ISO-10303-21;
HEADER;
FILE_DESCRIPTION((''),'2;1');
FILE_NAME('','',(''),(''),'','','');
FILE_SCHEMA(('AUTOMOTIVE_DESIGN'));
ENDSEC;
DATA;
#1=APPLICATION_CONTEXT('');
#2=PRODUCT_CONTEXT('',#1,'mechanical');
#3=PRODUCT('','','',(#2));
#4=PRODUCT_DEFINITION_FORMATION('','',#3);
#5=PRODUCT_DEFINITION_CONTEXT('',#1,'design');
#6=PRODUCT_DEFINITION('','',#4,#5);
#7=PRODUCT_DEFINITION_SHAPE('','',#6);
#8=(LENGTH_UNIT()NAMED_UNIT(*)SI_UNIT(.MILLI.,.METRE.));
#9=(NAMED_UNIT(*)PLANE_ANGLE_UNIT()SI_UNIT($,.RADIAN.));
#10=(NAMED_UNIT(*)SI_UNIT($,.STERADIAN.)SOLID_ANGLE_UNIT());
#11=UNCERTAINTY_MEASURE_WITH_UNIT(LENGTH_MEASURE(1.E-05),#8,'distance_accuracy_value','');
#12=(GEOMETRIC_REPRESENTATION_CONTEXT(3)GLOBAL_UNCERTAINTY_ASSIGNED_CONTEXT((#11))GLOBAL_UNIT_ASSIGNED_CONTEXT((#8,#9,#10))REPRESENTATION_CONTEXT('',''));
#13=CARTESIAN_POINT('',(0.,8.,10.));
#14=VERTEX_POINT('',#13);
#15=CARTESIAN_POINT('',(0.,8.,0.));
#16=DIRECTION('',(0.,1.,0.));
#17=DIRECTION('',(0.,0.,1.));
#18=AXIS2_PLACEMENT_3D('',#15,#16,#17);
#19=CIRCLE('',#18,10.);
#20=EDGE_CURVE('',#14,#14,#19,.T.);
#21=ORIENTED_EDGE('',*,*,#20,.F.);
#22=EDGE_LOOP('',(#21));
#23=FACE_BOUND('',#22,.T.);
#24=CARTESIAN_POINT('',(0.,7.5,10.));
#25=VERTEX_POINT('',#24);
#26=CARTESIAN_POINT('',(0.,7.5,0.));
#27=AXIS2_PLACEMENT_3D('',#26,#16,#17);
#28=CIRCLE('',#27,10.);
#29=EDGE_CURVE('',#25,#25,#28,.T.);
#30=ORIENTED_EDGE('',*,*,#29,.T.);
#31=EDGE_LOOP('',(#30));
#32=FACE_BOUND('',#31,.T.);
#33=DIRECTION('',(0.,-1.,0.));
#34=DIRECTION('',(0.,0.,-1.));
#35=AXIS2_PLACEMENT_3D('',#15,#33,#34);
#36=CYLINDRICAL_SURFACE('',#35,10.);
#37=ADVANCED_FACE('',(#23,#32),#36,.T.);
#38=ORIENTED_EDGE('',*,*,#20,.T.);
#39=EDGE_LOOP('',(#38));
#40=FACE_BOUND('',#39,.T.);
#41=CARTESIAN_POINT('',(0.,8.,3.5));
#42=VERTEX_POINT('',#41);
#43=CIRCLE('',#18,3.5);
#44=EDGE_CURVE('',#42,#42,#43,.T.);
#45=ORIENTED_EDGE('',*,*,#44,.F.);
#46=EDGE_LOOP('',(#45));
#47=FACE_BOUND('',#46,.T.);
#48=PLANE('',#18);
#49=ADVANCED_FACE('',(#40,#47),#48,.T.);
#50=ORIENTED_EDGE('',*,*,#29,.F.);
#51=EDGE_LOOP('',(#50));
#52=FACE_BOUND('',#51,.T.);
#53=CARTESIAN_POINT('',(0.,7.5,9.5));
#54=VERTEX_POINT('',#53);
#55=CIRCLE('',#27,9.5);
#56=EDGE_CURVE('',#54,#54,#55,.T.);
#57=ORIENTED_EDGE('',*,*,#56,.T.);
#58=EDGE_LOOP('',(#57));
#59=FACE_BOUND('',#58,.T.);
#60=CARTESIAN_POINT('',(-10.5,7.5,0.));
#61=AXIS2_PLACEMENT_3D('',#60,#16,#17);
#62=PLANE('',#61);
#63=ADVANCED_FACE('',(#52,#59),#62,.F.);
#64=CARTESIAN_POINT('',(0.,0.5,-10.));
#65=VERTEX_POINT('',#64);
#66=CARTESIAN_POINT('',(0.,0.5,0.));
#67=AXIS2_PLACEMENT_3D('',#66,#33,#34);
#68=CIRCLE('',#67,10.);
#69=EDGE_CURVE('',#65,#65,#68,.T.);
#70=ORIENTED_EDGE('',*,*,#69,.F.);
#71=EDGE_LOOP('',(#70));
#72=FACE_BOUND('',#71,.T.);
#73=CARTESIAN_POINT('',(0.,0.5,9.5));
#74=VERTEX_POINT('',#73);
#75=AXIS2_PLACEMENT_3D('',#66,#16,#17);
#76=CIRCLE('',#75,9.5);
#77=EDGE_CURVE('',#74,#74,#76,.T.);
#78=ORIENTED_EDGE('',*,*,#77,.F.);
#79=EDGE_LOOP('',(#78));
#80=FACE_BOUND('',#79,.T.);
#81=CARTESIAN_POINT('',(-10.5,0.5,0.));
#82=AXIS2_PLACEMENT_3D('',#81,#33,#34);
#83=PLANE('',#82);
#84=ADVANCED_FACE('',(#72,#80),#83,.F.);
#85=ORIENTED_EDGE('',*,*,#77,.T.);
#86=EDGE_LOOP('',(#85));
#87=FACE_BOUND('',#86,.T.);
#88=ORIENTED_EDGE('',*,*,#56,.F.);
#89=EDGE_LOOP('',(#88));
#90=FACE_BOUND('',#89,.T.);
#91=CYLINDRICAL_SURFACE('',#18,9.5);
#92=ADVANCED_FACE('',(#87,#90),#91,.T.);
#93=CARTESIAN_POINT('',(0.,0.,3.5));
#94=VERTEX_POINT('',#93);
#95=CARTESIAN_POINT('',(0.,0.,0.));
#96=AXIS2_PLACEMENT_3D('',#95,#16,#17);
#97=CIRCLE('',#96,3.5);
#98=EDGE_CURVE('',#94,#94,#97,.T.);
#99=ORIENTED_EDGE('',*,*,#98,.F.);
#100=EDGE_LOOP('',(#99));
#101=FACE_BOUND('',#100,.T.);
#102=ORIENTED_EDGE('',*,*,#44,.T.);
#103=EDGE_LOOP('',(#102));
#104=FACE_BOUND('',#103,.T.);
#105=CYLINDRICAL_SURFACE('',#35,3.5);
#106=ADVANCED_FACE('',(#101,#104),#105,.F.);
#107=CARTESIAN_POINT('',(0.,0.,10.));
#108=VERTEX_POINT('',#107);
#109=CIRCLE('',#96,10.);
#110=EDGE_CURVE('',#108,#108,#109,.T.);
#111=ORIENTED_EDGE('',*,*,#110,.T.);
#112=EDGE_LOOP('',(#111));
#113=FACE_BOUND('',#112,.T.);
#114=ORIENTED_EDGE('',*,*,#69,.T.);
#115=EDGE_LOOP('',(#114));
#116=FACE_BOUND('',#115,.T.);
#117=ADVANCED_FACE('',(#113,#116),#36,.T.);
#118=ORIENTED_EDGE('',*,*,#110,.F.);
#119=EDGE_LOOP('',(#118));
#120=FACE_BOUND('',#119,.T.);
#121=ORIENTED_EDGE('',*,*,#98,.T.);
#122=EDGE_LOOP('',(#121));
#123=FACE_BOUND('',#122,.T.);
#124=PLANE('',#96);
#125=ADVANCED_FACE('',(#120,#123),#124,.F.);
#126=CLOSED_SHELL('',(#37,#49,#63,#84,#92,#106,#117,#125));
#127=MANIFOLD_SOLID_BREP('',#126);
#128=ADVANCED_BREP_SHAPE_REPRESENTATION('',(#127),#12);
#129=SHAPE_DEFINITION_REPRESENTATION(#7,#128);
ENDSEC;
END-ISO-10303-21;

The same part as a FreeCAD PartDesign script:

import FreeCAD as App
import Part
import Sketcher
Q = App.Units.Quantity


def add_polygon(sketch, points):
    """Adds a closed chain of lines whose ends are joined by coincident constraints."""
    first, n = sketch.GeometryCount, len(points)
    for a, b in zip(points, points[1:] + points[:1]):
        sketch.addGeometry(Part.LineSegment(App.Vector(*a, 0), App.Vector(*b, 0)), False)
    for i in range(n):
        sketch.addConstraint(Sketcher.Constraint("Coincident", first + i, 2, first + (i + 1) % n, 1))

doc = App.newDocument("Part")
body = doc.addObject("PartDesign::Body", "Body")

sketch1 = doc.addObject("Sketcher::SketchObject", "Sketch")
body.addObject(sketch1)
sketch1.AttachmentSupport = (doc.XZ_Plane, [""])
sketch1.MapMode = "FlatFace"
sketch1.addGeometry(Part.Circle(App.Vector(0, 0, 0), App.Vector(0, 0, 1), 10), False)
sketch1.addGeometry(Part.Circle(App.Vector(0, 0, 0), App.Vector(0, 0, 1), 3.5), False)
sketch1.addConstraint(Sketcher.Constraint("Coincident", 0, 3, -1, 1))
sketch1.addConstraint(Sketcher.Constraint("Coincident", 1, 3, -1, 1))
sketch1.addConstraint(Sketcher.Constraint("Diameter", 0, Q("20 mm")))
sketch1.addConstraint(Sketcher.Constraint("Diameter", 1, Q("7 mm")))
pad1 = doc.addObject("PartDesign::Pad", "Pad")
body.addObject(pad1)
pad1.Profile = sketch1
pad1.Length = 8
pad1.Reversed = True

sketch2 = doc.addObject("Sketcher::SketchObject", "Sketch001")
body.addObject(sketch2)
sketch2.AttachmentSupport = (doc.XY_Plane, [""])
sketch2.MapMode = "FlatFace"
add_polygon(sketch2, [(-10.5, 7.5), (-10.5, 0.5), (-9.5, 0.5), (-9.5, 7.5)])
sketch2.addConstraint(Sketcher.Constraint("Vertical", 0))
sketch2.addConstraint(Sketcher.Constraint("Horizontal", 1))
sketch2.addConstraint(Sketcher.Constraint("Vertical", 2))
sketch2.addConstraint(Sketcher.Constraint("Horizontal", 3))
sketch2.addConstraint(Sketcher.Constraint("DistanceX", 1, 1, 1, 2, Q("1 mm")))
sketch2.addConstraint(Sketcher.Constraint("DistanceY", 0, 2, 0, 1, Q("7 mm")))
sketch2.addConstraint(Sketcher.Constraint("DistanceX", 0, 2, -1, 1, Q("10.5 mm")))
sketch2.addConstraint(Sketcher.Constraint("DistanceY", -1, 1, 0, 2, Q("0.5 mm")))
groove = doc.addObject("PartDesign::Groove", "Groove")
body.addObject(groove)
groove.Profile = sketch2
groove.ReferenceAxis = (sketch2, ["V_Axis"])
groove.Angle = 360

doc.recompute()
